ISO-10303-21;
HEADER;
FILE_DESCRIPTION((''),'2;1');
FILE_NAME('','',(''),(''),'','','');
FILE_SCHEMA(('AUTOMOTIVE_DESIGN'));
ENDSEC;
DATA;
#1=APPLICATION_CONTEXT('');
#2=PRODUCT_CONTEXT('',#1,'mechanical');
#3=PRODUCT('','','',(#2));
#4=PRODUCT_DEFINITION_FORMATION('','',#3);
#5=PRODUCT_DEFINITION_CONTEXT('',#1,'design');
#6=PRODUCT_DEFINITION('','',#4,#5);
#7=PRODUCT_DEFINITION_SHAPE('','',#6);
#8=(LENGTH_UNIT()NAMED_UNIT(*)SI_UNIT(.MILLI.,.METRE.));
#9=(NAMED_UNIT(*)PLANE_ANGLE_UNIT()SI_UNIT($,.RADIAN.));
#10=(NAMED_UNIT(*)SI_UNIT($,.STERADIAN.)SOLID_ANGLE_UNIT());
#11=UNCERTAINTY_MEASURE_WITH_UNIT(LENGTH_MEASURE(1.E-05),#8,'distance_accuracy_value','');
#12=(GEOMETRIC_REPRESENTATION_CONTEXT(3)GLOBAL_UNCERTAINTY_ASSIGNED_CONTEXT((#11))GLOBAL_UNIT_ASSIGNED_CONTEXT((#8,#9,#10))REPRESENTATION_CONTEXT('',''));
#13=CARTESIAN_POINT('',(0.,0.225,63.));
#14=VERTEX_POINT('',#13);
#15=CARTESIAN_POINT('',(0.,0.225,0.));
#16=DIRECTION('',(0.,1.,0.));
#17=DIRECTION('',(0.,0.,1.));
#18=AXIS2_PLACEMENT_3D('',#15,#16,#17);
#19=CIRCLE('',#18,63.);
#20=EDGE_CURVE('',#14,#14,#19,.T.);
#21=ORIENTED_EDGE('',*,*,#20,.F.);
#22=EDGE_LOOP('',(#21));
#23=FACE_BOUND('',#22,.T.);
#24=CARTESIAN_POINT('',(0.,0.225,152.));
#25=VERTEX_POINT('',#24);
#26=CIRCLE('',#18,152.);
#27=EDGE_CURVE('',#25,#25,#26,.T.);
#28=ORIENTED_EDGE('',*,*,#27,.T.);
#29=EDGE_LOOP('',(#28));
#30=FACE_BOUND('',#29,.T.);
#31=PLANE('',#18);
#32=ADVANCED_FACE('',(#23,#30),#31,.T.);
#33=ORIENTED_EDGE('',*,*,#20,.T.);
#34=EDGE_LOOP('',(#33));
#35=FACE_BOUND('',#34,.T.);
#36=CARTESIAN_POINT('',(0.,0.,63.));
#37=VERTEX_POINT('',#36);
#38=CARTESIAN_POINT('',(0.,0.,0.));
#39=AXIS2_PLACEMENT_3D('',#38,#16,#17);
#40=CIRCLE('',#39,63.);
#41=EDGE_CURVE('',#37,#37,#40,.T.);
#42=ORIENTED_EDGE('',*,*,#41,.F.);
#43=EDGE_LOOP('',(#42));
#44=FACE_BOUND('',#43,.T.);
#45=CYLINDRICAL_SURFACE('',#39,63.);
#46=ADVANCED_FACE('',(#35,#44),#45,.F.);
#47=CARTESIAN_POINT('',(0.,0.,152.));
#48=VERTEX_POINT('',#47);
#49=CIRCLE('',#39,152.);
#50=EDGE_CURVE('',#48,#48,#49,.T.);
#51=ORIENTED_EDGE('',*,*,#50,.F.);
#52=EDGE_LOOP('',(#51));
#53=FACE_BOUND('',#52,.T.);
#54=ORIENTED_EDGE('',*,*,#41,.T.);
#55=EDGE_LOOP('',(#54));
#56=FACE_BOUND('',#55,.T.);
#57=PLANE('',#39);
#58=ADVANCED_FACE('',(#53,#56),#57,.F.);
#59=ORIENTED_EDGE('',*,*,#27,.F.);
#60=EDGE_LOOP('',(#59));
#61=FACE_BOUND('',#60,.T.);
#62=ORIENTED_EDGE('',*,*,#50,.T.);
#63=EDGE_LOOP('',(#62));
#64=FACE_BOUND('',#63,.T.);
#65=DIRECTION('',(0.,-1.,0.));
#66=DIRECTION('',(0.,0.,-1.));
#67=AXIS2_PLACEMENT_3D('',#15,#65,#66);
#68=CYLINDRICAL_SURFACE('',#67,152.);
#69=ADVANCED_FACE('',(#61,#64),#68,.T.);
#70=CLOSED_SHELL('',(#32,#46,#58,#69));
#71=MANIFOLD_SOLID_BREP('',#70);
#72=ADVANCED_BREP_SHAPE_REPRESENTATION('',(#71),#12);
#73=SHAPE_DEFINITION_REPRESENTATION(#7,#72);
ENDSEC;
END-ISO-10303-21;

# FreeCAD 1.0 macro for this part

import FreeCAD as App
import Part
import Sketcher

V = App.Vector

doc = App.newDocument("Part")
body = doc.addObject("PartDesign::Body", "Body")

sketch1 = body.newObject("Sketcher::SketchObject", "Sketch")
sketch1.AttachmentSupport = (doc.getObject("XZ_Plane"), [""])
sketch1.MapMode = "FlatFace"
sketch1.addGeometry(Part.Circle(V(0, 0, 0), V(0, 0, 1), 152), False)
sketch1.addConstraint([
    Sketcher.Constraint("Coincident", 0, 3, -1, 1),
    Sketcher.Constraint("Diameter", 0, 304.0),
])
pad1 = body.newObject("PartDesign::Pad", "Pad")
pad1.Profile = sketch1
pad1.Length = 0.225
pad1.Reversed = True

sketch2 = body.newObject("Sketcher::SketchObject", "Sketch001")
sketch2.AttachmentSupport = (doc.getObject("XZ_Plane"), [""])
sketch2.MapMode = "FlatFace"
sketch2.AttachmentOffset = App.Placement(V(0, 0, -0.225), App.Rotation())
sketch2.addGeometry(Part.Circle(V(0, 0, 0), V(0, 0, 1), 63), False)
sketch2.addConstraint([
    Sketcher.Constraint("Coincident", 0, 3, -1, 1),
    Sketcher.Constraint("Diameter", 0, 126.0),
])
pocket1 = body.newObject("PartDesign::Pocket", "Pocket")
pocket1.Profile = sketch2
pocket1.Length = 0.225
pocket1.Reversed = True

doc.recompute()
